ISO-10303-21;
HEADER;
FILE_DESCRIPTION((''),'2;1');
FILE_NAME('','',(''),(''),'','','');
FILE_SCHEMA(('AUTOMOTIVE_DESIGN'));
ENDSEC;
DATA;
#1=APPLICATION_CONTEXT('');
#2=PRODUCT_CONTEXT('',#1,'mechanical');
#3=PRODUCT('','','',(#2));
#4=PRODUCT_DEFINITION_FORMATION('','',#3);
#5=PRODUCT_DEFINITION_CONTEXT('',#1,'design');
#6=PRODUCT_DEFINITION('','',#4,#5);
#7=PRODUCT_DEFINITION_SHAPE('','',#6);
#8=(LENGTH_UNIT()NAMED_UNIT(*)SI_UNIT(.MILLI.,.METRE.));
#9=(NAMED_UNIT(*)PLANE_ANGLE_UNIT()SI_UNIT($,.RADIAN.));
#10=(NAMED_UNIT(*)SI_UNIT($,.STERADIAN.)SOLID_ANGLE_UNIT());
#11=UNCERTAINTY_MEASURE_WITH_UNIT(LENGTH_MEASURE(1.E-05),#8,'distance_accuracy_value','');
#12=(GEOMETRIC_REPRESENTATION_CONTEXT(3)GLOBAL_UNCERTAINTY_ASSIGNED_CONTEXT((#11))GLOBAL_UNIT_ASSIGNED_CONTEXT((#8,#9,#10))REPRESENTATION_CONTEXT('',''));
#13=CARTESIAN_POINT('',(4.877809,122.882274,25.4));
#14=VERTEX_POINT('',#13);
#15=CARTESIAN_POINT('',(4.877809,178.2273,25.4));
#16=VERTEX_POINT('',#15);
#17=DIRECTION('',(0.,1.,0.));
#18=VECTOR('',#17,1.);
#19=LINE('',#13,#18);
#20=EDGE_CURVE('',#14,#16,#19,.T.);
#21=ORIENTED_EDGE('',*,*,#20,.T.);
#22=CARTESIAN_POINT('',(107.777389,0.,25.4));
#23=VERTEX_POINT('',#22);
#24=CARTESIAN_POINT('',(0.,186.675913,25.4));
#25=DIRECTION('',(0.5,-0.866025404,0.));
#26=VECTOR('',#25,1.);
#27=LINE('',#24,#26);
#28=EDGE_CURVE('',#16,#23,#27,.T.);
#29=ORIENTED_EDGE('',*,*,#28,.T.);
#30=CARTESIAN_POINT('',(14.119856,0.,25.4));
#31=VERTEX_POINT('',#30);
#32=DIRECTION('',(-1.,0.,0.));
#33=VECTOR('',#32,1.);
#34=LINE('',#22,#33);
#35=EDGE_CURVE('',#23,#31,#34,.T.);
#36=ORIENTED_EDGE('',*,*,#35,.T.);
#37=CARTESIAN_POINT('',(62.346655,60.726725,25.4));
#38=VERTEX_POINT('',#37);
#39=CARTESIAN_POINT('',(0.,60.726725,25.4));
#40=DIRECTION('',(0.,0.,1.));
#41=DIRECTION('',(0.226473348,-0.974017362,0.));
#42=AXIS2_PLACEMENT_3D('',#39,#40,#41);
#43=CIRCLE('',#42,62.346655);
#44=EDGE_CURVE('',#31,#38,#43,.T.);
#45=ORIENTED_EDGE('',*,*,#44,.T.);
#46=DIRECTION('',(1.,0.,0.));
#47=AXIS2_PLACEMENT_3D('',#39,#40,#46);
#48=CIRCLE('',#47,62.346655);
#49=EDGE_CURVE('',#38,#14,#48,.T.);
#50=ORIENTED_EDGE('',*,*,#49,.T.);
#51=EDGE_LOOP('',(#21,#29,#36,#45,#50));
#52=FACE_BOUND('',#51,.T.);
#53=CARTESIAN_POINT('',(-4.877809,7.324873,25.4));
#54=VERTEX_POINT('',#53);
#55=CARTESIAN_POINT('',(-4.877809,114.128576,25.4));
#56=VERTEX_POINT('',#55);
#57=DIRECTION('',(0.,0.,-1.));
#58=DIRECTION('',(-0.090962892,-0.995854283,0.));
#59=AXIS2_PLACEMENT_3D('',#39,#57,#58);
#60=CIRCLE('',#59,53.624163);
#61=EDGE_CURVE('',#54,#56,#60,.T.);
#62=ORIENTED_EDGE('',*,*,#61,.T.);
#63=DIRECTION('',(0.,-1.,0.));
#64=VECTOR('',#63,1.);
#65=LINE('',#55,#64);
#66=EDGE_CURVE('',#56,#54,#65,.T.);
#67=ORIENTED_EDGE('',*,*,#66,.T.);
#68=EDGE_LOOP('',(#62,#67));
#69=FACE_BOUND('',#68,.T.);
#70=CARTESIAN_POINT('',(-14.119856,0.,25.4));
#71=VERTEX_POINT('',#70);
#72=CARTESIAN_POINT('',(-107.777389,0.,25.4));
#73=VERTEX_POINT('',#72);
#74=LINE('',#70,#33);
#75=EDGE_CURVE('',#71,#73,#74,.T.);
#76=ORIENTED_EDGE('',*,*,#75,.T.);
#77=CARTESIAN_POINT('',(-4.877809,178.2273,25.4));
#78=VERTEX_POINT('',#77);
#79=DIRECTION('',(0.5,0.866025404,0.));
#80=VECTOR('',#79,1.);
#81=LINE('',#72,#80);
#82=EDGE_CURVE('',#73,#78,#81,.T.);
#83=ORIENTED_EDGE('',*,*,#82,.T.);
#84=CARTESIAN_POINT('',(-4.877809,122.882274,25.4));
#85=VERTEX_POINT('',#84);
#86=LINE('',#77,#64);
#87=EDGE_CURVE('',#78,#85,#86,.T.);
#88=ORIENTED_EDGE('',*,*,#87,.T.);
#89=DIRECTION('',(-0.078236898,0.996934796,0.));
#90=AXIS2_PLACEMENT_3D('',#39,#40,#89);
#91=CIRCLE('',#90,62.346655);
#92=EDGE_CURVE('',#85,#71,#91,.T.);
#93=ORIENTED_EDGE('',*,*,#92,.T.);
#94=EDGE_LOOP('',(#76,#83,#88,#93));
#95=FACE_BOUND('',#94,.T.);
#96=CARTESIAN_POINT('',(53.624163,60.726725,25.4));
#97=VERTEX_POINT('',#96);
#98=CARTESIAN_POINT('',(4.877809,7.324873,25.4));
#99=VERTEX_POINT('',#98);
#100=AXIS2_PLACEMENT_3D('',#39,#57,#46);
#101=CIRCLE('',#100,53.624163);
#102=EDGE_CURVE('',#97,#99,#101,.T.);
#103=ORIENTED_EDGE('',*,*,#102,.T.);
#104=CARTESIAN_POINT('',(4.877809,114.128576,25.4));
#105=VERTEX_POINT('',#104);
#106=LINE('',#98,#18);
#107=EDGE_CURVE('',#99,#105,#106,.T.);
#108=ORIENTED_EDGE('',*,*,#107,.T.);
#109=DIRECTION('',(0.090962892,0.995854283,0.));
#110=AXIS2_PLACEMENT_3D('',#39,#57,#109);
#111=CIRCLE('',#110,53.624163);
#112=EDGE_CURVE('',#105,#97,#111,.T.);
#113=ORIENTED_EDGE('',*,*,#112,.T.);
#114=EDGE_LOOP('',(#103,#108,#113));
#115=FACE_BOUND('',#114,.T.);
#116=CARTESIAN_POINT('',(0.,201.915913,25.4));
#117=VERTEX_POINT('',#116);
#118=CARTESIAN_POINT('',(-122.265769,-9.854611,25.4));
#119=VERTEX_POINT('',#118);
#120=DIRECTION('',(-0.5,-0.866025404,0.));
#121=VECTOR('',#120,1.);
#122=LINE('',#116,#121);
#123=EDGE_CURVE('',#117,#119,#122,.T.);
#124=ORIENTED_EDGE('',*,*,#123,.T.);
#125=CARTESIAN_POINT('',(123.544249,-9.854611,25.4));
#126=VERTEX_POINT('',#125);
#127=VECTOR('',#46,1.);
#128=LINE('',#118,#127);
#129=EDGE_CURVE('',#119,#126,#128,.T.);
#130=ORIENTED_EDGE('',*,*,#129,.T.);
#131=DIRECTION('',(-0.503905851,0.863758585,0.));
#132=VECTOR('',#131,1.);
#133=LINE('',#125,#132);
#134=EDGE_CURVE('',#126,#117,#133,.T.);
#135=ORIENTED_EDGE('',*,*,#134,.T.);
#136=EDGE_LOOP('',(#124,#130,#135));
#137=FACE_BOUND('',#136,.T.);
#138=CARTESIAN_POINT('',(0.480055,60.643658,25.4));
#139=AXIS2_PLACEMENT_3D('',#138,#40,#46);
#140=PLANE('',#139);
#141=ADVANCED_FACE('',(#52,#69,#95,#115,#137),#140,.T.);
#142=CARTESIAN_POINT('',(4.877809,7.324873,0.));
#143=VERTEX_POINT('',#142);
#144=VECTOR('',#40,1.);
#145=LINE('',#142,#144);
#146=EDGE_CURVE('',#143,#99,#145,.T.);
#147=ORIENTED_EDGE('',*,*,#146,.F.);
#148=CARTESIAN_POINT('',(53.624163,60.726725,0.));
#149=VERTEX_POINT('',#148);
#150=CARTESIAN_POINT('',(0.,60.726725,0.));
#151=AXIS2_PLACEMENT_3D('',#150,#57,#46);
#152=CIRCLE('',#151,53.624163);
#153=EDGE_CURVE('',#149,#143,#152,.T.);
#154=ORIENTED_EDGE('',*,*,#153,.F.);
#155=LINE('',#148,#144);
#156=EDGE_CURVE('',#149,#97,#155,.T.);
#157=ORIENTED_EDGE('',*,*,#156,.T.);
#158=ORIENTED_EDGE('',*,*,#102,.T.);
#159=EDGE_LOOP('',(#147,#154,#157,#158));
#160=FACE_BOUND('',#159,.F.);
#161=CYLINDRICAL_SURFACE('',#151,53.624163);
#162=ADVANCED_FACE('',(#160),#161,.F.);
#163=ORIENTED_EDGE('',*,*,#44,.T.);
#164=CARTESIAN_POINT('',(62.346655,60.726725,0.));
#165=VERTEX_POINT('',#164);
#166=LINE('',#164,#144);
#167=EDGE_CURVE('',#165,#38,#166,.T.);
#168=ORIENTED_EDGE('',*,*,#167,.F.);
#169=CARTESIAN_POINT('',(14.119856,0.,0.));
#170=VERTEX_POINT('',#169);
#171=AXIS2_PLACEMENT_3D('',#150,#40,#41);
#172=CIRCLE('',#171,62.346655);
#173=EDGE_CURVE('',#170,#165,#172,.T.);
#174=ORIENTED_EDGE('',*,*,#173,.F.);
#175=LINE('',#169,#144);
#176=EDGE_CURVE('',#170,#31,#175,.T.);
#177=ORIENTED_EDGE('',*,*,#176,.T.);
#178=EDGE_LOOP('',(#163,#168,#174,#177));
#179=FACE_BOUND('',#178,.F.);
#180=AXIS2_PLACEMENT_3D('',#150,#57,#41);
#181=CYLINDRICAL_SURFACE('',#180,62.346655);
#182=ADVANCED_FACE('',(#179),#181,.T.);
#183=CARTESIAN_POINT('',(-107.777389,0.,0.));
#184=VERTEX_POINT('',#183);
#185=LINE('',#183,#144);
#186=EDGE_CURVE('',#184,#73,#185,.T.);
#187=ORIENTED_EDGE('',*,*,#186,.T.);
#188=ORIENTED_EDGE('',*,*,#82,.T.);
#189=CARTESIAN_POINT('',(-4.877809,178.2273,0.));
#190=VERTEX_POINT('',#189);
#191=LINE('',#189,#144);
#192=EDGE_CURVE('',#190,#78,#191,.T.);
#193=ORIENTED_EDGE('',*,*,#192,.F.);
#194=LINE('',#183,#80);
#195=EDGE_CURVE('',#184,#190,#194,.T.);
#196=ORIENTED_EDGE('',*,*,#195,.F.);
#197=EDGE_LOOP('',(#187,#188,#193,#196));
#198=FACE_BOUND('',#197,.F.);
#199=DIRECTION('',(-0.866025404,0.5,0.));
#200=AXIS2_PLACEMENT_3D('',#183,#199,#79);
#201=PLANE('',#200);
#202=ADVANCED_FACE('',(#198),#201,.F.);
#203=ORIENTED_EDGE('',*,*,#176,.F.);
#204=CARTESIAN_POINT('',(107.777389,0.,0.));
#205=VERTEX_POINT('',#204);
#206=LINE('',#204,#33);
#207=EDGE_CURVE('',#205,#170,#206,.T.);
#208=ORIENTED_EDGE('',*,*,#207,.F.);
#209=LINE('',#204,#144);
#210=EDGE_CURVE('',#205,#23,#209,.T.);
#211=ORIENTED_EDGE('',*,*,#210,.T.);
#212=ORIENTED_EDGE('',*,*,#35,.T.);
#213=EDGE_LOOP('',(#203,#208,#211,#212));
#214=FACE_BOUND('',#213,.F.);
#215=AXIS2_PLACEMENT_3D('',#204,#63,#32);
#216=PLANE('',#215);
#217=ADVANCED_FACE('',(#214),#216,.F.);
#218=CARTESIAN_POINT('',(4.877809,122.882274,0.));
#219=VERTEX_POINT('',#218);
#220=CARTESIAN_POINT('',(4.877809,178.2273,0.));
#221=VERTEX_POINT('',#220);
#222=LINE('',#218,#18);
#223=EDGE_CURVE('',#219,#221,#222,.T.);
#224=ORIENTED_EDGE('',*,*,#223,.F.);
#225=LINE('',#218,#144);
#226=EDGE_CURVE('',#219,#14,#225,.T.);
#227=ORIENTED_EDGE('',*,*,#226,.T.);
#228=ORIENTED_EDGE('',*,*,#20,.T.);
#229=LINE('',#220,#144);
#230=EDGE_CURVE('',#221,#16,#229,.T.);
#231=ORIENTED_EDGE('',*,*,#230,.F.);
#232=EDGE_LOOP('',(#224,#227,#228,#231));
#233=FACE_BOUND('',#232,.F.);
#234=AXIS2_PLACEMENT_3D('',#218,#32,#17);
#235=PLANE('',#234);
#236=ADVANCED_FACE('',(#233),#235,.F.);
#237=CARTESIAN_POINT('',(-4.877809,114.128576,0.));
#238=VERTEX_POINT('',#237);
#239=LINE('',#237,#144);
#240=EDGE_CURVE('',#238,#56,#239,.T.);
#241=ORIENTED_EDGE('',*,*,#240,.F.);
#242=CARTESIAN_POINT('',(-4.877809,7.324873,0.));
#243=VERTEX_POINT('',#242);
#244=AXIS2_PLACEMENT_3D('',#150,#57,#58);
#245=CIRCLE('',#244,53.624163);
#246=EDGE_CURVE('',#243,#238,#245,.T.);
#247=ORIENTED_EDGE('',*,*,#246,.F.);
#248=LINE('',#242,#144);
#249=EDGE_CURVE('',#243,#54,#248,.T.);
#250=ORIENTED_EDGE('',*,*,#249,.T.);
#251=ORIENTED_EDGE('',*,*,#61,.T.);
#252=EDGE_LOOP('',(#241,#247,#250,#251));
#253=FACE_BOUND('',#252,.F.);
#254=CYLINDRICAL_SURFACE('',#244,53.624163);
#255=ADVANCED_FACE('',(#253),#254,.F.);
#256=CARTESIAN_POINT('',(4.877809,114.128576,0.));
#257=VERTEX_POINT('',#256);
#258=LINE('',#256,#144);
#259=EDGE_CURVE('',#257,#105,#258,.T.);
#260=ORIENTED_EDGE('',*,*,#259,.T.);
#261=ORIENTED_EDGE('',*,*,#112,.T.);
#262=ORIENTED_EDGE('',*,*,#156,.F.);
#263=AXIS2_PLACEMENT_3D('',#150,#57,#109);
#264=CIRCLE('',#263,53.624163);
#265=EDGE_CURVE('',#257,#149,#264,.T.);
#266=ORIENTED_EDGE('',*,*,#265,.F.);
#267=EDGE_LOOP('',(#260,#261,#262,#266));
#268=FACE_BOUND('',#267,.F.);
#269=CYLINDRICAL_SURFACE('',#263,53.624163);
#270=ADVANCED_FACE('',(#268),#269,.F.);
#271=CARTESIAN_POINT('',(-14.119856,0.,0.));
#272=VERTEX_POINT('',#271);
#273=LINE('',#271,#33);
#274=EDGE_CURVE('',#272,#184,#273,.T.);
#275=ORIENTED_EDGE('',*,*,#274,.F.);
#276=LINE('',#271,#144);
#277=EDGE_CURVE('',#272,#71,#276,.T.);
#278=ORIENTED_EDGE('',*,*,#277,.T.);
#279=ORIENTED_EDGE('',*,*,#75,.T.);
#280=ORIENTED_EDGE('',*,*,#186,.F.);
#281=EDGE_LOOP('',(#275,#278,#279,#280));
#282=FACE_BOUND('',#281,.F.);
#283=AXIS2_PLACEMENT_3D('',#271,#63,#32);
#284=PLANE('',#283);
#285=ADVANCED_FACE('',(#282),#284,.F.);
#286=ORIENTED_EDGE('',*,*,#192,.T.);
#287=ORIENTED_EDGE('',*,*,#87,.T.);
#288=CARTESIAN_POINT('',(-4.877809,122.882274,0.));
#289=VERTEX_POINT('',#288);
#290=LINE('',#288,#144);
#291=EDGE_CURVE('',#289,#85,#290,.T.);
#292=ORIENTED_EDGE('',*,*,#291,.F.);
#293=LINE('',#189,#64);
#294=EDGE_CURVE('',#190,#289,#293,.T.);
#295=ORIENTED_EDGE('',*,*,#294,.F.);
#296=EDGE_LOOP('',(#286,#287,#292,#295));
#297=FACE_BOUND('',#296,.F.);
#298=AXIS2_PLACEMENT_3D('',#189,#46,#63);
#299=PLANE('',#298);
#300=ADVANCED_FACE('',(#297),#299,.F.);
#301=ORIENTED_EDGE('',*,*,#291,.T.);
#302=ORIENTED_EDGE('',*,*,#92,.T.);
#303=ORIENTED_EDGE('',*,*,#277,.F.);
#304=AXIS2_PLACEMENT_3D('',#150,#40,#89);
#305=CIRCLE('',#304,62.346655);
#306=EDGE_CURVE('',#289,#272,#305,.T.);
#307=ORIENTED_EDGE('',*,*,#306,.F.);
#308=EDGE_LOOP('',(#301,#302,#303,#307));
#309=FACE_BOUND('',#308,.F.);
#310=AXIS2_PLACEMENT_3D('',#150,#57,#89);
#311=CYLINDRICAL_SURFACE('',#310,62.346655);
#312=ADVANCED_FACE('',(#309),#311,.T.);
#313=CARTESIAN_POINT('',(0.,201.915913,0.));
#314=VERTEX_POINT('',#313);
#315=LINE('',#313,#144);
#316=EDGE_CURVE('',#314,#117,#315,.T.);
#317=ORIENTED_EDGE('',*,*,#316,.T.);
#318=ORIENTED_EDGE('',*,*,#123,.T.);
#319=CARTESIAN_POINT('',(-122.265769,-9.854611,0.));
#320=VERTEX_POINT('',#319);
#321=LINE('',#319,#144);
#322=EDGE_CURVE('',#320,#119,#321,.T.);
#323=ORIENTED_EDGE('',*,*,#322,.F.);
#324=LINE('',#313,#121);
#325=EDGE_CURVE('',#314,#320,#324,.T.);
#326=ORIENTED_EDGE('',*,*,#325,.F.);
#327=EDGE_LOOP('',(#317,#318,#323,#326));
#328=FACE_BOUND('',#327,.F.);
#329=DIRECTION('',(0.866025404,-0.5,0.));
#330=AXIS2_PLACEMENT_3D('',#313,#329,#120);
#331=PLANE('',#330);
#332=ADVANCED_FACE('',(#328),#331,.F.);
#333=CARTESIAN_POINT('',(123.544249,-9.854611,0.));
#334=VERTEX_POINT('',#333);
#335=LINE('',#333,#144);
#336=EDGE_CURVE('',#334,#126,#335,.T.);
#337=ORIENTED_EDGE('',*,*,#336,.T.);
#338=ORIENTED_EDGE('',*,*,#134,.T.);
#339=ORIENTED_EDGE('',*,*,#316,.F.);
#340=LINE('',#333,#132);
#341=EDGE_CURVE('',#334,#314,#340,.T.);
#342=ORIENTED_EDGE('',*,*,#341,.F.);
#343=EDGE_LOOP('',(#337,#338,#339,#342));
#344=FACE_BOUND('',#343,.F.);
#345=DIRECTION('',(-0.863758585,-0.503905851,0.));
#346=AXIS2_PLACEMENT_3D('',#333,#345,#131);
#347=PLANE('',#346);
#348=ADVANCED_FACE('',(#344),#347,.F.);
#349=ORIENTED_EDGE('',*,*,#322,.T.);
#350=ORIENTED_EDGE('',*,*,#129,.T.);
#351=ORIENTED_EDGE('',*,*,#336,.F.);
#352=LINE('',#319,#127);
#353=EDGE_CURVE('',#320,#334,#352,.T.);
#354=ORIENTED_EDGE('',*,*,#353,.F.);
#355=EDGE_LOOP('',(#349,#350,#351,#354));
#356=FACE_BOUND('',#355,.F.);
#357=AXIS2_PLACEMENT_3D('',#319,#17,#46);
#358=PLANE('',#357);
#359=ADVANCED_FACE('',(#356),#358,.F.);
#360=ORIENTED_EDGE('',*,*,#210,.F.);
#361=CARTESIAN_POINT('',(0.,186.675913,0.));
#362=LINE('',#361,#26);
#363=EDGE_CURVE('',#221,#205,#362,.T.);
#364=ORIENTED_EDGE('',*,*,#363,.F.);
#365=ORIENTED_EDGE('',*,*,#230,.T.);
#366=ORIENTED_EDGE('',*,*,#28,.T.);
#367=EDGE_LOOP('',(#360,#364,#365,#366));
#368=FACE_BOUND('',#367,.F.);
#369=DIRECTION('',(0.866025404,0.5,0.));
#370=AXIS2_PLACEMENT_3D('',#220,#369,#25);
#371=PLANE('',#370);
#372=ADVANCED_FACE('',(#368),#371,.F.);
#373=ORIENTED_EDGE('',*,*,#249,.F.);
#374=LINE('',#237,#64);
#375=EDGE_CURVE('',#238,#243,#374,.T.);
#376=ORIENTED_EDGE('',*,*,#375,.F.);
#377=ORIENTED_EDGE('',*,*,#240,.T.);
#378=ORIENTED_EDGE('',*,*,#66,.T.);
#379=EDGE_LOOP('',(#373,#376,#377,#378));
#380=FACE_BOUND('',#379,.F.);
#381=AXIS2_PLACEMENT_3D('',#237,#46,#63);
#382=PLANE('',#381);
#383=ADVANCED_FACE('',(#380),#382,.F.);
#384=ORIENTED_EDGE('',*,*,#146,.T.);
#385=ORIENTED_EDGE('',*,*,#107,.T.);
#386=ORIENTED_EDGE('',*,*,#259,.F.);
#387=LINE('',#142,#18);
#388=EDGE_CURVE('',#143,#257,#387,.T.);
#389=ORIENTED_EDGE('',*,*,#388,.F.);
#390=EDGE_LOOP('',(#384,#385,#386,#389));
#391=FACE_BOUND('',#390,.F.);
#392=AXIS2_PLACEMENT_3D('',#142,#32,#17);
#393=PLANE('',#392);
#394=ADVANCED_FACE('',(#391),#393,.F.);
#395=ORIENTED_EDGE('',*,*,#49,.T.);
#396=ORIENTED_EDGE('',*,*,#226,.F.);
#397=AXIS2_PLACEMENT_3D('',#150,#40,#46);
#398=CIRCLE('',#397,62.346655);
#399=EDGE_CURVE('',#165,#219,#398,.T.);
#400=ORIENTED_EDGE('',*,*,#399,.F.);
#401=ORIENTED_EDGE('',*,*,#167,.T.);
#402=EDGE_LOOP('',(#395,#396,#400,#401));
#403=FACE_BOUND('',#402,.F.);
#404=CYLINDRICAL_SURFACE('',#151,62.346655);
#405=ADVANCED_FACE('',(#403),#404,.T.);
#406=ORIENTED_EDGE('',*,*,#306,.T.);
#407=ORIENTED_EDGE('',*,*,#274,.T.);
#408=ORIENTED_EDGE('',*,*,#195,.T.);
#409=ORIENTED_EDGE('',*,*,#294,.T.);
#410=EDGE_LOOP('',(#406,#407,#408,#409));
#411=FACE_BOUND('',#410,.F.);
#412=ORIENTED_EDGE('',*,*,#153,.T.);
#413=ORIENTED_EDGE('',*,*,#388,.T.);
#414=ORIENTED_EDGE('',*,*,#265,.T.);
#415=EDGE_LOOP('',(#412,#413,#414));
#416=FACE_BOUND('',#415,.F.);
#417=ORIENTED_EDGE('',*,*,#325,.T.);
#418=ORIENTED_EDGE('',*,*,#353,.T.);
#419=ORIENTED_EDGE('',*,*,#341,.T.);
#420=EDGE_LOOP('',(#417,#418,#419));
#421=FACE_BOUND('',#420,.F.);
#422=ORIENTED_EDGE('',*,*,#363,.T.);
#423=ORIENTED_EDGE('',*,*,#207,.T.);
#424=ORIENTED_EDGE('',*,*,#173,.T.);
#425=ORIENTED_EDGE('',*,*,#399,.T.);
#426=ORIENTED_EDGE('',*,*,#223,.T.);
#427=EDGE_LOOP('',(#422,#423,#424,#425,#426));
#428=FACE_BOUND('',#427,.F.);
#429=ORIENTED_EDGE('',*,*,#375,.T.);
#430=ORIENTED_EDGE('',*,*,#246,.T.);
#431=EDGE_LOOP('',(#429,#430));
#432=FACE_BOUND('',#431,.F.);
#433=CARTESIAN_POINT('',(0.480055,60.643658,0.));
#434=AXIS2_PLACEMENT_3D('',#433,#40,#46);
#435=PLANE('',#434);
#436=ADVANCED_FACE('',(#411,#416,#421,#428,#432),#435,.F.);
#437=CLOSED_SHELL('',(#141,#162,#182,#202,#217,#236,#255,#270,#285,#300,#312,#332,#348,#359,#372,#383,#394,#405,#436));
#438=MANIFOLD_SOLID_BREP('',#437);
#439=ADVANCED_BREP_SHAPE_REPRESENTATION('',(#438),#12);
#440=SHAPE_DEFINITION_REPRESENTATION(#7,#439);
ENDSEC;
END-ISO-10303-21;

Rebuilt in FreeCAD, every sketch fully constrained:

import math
import FreeCAD as App
import Part
import Sketcher
Q = App.Units.Quantity


def add_polygon(sketch, points):
    """Adds a closed chain of lines whose ends are joined by coincident constraints."""
    first, n = sketch.GeometryCount, len(points)
    for a, b in zip(points, points[1:] + points[:1]):
        sketch.addGeometry(Part.LineSegment(App.Vector(*a, 0), App.Vector(*b, 0)), False)
    for i in range(n):
        sketch.addConstraint(Sketcher.Constraint("Coincident", first + i, 2, first + (i + 1) % n, 1))

doc = App.newDocument("Part")
body = doc.addObject("PartDesign::Body", "Body")

# Sketch on XY plane
sketch1 = body.newObject("Sketcher::SketchObject", "Sketch")
sketch1.AttachmentSupport = (doc.getObject("XY_Plane"), [""])
sketch1.MapMode = "FlatFace"
add_polygon(sketch1, [(123.544249, -9.854611), (0, 201.915913), (-122.265769, -9.854611)])  # lines 0-2
sketch1.addGeometry(Part.LineSegment(App.Vector(-4.877809, 114.128576, 0), App.Vector(-4.877809, 7.324873, 0)), False)  # 3
sketch1.addGeometry(Part.ArcOfCircle(Part.Circle(App.Vector(0, 60.726725, 0), App.Vector(0, 0, 1), 53.624163), math.radians(95.219004), math.radians(264.780996)), False)  # 4
sketch1.addGeometry(Part.ArcOfCircle(Part.Circle(App.Vector(0, 60.726725, 0), App.Vector(0, 0, 1), 53.624163), math.radians(-84.780996), math.radians(0)), False)  # 5
sketch1.addGeometry(Part.LineSegment(App.Vector(4.877809, 7.324873, 0), App.Vector(4.877809, 114.128576, 0)), False)  # 6
sketch1.addGeometry(Part.ArcOfCircle(Part.Circle(App.Vector(0, 60.726725, 0), App.Vector(0, 0, 1), 53.624163), math.radians(0), math.radians(84.780996)), False)  # 7
sketch1.addGeometry(Part.ArcOfCircle(Part.Circle(App.Vector(0, 60.726725, 0), App.Vector(0, 0, 1), 62.346655), math.radians(94.48723), math.radians(256.910469)), False)  # 8
sketch1.addGeometry(Part.LineSegment(App.Vector(-14.119856, 0, 0), App.Vector(-107.777389, 0, 0)), False)  # 9
sketch1.addGeometry(Part.LineSegment(App.Vector(-107.777389, 0, 0), App.Vector(-4.877809, 178.2273, 0)), False)  # 10
sketch1.addGeometry(Part.LineSegment(App.Vector(-4.877809, 178.2273, 0), App.Vector(-4.877809, 122.882274, 0)), False)  # 11
sketch1.addGeometry(Part.LineSegment(App.Vector(107.777389, 0, 0), App.Vector(14.119856, 0, 0)), False)  # 12
sketch1.addGeometry(Part.ArcOfCircle(Part.Circle(App.Vector(0, 60.726725, 0), App.Vector(0, 0, 1), 62.346655), math.radians(-76.910469), math.radians(0)), False)  # 13
sketch1.addGeometry(Part.ArcOfCircle(Part.Circle(App.Vector(0, 60.726725, 0), App.Vector(0, 0, 1), 62.346655), math.radians(0), math.radians(85.51277)), False)  # 14
sketch1.addGeometry(Part.LineSegment(App.Vector(4.877809, 122.882274, 0), App.Vector(4.877809, 178.2273, 0)), False)  # 15
sketch1.addGeometry(Part.LineSegment(App.Vector(4.877809, 178.2273, 0), App.Vector(107.777389, 0, 0)), False)  # 16
sketch1.addConstraint([
    Sketcher.Constraint("Coincident", 3, 1, 4, 1),
    Sketcher.Constraint("Coincident", 4, 2, 3, 2),
    Sketcher.Constraint("Coincident", 5, 1, 6, 1),
    Sketcher.Constraint("Coincident", 6, 2, 7, 2),
    Sketcher.Constraint("Coincident", 7, 1, 5, 2),
    Sketcher.Constraint("Coincident", 8, 2, 9, 1),
    Sketcher.Constraint("Coincident", 9, 2, 10, 1),
    Sketcher.Constraint("Coincident", 10, 2, 11, 1),
    Sketcher.Constraint("Coincident", 11, 2, 8, 1),
    Sketcher.Constraint("Coincident", 12, 2, 13, 1),
    Sketcher.Constraint("Coincident", 13, 2, 14, 1),
    Sketcher.Constraint("Coincident", 14, 2, 15, 1),
    Sketcher.Constraint("Coincident", 15, 2, 16, 1),
    Sketcher.Constraint("Coincident", 16, 2, 12, 1),
    Sketcher.Constraint("Horizontal", 2),
    Sketcher.Constraint("Vertical", 3),
    Sketcher.Constraint("Vertical", 6),
    Sketcher.Constraint("Horizontal", 9),
    Sketcher.Constraint("Vertical", 11),
    Sketcher.Constraint("Horizontal", 12),
    Sketcher.Constraint("Vertical", 15),
    Sketcher.Constraint("Coincident", 5, 3, 4, 3),
    Sketcher.Constraint("Coincident", 7, 3, 4, 3),
    Sketcher.Constraint("Coincident", 8, 3, 4, 3),
    Sketcher.Constraint("Coincident", 13, 3, 4, 3),
    Sketcher.Constraint("Coincident", 14, 3, 4, 3),
    Sketcher.Constraint("PointOnObject", 4, 3, -2),
    Sketcher.Constraint("PointOnObject", 0, 2, -2),
    Sketcher.Constraint("PointOnObject", 8, 2, -1),
    Sketcher.Constraint("PointOnObject", 12, 2, -1),
    Sketcher.Constraint("DistanceX", 8, 2, -1, 1, Q("0.5558998 in")),
    Sketcher.Constraint("DistanceX", -1, 1, 12, 2, Q("0.5558998 in")),
    Sketcher.Constraint("Radius", 4, Q("53.624163 mm")),
    Sketcher.Constraint("Radius", 5, Q("53.624163 mm")),
    Sketcher.Constraint("Radius", 8, Q("62.346655 mm")),
    Sketcher.Constraint("DistanceX", 2, 1, 2, 2, Q("245.810018 mm")),
    Sketcher.Constraint("DistanceY", -1, 1, 10, 2, Q("178.2273 mm")),
    Sketcher.Constraint("DistanceY", -1, 1, 15, 2, Q("178.2273 mm")),
    Sketcher.Constraint("DistanceY", 3, 1, 11, 2, Q("8.753698 mm")),
    Sketcher.Constraint("DistanceY", 6, 2, 11, 2, Q("8.753698 mm")),
    Sketcher.Constraint("DistanceY", 6, 2, 14, 2, Q("8.753698 mm")),
    Sketcher.Constraint("Distance", 0, Q("245.173278 mm")),
    Sketcher.Constraint("Distance", 1, Q("244.531538 mm")),
    Sketcher.Constraint("Distance", 10, Q("205.79916 mm")),
    Sketcher.Constraint("Distance", 16, Q("205.79916 mm")),
    Sketcher.Constraint("DistanceX", 9, 2, 9, 1, Q("93.657533 mm")),
    Sketcher.Constraint("DistanceY", 1, 2, -1, 1, Q("9.854611 mm")),
    Sketcher.Constraint("DistanceY", -1, 1, 7, 1, Q("60.726725 mm")),
    Sketcher.Constraint("DistanceY", -1, 1, 13, 2, Q("60.726725 mm")),
])
pad1 = body.newObject("PartDesign::Pad", "Pad")
pad1.Profile = sketch1
pad1.Length = Q("1 in")

doc.recompute()
